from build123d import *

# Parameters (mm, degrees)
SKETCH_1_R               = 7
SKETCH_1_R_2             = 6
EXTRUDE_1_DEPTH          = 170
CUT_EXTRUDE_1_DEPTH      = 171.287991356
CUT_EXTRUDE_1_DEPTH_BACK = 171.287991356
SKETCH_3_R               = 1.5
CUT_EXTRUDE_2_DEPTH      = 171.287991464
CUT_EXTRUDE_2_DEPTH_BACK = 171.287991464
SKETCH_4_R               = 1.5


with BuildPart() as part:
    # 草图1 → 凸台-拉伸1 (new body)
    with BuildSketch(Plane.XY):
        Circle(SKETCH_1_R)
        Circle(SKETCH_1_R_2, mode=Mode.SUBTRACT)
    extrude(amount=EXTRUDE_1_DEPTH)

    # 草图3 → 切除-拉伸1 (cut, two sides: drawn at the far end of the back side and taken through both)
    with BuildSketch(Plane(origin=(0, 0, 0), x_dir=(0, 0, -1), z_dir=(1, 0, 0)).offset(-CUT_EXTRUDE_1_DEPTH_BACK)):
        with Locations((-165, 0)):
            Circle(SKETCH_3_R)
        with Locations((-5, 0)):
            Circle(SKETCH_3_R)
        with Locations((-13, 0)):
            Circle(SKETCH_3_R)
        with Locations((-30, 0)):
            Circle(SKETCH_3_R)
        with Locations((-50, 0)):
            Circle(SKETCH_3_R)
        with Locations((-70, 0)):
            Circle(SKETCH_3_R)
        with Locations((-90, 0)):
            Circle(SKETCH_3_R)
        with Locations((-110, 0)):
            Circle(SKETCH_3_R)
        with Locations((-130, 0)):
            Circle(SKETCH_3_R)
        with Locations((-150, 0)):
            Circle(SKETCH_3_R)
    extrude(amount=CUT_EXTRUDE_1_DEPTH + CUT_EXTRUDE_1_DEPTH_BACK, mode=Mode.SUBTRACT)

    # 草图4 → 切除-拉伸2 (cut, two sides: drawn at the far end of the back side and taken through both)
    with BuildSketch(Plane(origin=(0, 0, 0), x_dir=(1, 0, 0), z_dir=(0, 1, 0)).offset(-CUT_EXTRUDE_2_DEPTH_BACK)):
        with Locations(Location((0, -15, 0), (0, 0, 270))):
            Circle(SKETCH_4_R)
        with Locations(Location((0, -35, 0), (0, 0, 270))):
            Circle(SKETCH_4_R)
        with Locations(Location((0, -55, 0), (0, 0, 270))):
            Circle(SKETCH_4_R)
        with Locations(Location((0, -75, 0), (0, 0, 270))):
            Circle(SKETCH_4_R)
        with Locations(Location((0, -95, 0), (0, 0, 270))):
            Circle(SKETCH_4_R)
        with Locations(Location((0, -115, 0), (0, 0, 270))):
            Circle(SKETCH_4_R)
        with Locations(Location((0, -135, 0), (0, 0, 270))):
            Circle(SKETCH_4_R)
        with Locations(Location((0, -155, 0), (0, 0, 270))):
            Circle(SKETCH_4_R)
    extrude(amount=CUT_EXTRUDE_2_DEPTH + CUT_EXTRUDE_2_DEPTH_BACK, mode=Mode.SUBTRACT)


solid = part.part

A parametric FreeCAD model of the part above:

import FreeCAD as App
import Part
import Sketcher
from FreeCAD import Vector

doc = App.newDocument("Part")
body = doc.addObject("PartDesign::Body", "Body")

# Sketch on XY plane
sketch1 = doc.addObject("Sketcher::SketchObject", "Sketch")
body.addObject(sketch1)
sketch1.AttachmentSupport = (doc.XY_Plane, [""])
sketch1.MapMode = "FlatFace"
sketch1.addGeometry(Part.Circle(Vector(0, 0, 0), Vector(0, 0, 1), 7), False)
sketch1.addGeometry(Part.Circle(Vector(0, 0, 0), Vector(0, 0, 1), 6), False)
sketch1.addConstraint(Sketcher.Constraint("Coincident", 0, 3, -1, 1))
sketch1.addConstraint(Sketcher.Constraint("Coincident", 1, 3, -1, 1))
sketch1.addConstraint(Sketcher.Constraint("Diameter", 0, 14.0))
sketch1.addConstraint(Sketcher.Constraint("Diameter", 1, 12.0))
pad1 = doc.addObject("PartDesign::Pad", "Pad")
body.addObject(pad1)
pad1.Profile = sketch1
pad1.Length = 170

# Sketch on YZ plane
sketch2 = doc.addObject("Sketcher::SketchObject", "Sketch001")
body.addObject(sketch2)
sketch2.AttachmentSupport = (doc.YZ_Plane, [""])
sketch2.MapMode = "FlatFace"
sketch2.addGeometry(Part.Circle(Vector(0, 165, 0), Vector(0, 0, 1), 1.5), False)
sketch2.addGeometry(Part.Circle(Vector(0, 5, 0), Vector(0, 0, 1), 1.5), False)
sketch2.addGeometry(Part.Circle(Vector(0, 13, 0), Vector(0, 0, 1), 1.5), False)
sketch2.addGeometry(Part.Circle(Vector(0, 30, 0), Vector(0, 0, 1), 1.5), False)
sketch2.addGeometry(Part.Circle(Vector(0, 50, 0), Vector(0, 0, 1), 1.5), False)
sketch2.addGeometry(Part.Circle(Vector(0, 70, 0), Vector(0, 0, 1), 1.5), False)
sketch2.addGeometry(Part.Circle(Vector(0, 90, 0), Vector(0, 0, 1), 1.5), False)
sketch2.addGeometry(Part.Circle(Vector(0, 110, 0), Vector(0, 0, 1), 1.5), False)
sketch2.addGeometry(Part.Circle(Vector(0, 130, 0), Vector(0, 0, 1), 1.5), False)
sketch2.addGeometry(Part.Circle(Vector(0, 150, 0), Vector(0, 0, 1), 1.5), False)
sketch2.addConstraint(Sketcher.Constraint("Equal", 0, 1))
sketch2.addConstraint(Sketcher.Constraint("Equal", 1, 2))
sketch2.addConstraint(Sketcher.Constraint("Equal", 2, 3))
sketch2.addConstraint(Sketcher.Constraint("Equal", 3, 4))
sketch2.addConstraint(Sketcher.Constraint("Equal", 4, 5))
sketch2.addConstraint(Sketcher.Constraint("Equal", 5, 6))
sketch2.addConstraint(Sketcher.Constraint("Equal", 6, 7))
sketch2.addConstraint(Sketcher.Constraint("Equal", 7, 8))
sketch2.addConstraint(Sketcher.Constraint("Equal", 8, 9))
sketch2.addConstraint(Sketcher.Constraint("PointOnObject", 0, 3, -2))
sketch2.addConstraint(Sketcher.Constraint("PointOnObject", 1, 3, -2))
sketch2.addConstraint(Sketcher.Constraint("PointOnObject", 2, 3, -2))
sketch2.addConstraint(Sketcher.Constraint("PointOnObject", 3, 3, -2))
sketch2.addConstraint(Sketcher.Constraint("PointOnObject", 4, 3, -2))
sketch2.addConstraint(Sketcher.Constraint("PointOnObject", 5, 3, -2))
sketch2.addConstraint(Sketcher.Constraint("PointOnObject", 6, 3, -2))
sketch2.addConstraint(Sketcher.Constraint("PointOnObject", 7, 3, -2))
sketch2.addConstraint(Sketcher.Constraint("PointOnObject", 8, 3, -2))
sketch2.addConstraint(Sketcher.Constraint("PointOnObject", 9, 3, -2))
sketch2.addConstraint(Sketcher.Constraint("Diameter", 0, 3.0))
sketch2.addConstraint(Sketcher.Constraint("DistanceY", -1, 1, 0, 3, 165.0))
sketch2.addConstraint(Sketcher.Constraint("DistanceY", -1, 1, 1, 3, 5.0))
sketch2.addConstraint(Sketcher.Constraint("DistanceY", -1, 1, 2, 3, 13.0))
sketch2.addConstraint(Sketcher.Constraint("DistanceY", -1, 1, 3, 3, 30.0))
sketch2.addConstraint(Sketcher.Constraint("DistanceY", -1, 1, 4, 3, 50.0))
sketch2.addConstraint(Sketcher.Constraint("DistanceY", -1, 1, 5, 3, 70.0))
sketch2.addConstraint(Sketcher.Constraint("DistanceY", -1, 1, 6, 3, 90.0))
sketch2.addConstraint(Sketcher.Constraint("DistanceY", -1, 1, 7, 3, 110.0))
sketch2.addConstraint(Sketcher.Constraint("DistanceY", -1, 1, 8, 3, 130.0))
sketch2.addConstraint(Sketcher.Constraint("DistanceY", -1, 1, 9, 3, 150.0))
pocket1 = doc.addObject("PartDesign::Pocket", "Pocket")
body.addObject(pocket1)
pocket1.Profile = sketch2
pocket1.Type = "ThroughAll"
pocket1.Midplane = True

# Sketch on XZ plane
sketch3 = doc.addObject("Sketcher::SketchObject", "Sketch002")
body.addObject(sketch3)
sketch3.AttachmentSupport = (doc.XZ_Plane, [""])
sketch3.MapMode = "FlatFace"
sketch3.addGeometry(Part.Circle(Vector(0, 15, 0), Vector(0, 0, 1), 1.5), False)
sketch3.addGeometry(Part.Circle(Vector(0, 35, 0), Vector(0, 0, 1), 1.5), False)
sketch3.addGeometry(Part.Circle(Vector(0, 55, 0), Vector(0, 0, 1), 1.5), False)
sketch3.addGeometry(Part.Circle(Vector(0, 75, 0), Vector(0, 0, 1), 1.5), False)
sketch3.addGeometry(Part.Circle(Vector(0, 95, 0), Vector(0, 0, 1), 1.5), False)
sketch3.addGeometry(Part.Circle(Vector(0, 115, 0), Vector(0, 0, 1), 1.5), False)
sketch3.addGeometry(Part.Circle(Vector(0, 135, 0), Vector(0, 0, 1), 1.5), False)
sketch3.addGeometry(Part.Circle(Vector(0, 155, 0), Vector(0, 0, 1), 1.5), False)
sketch3.addConstraint(Sketcher.Constraint("Equal", 0, 1))
sketch3.addConstraint(Sketcher.Constraint("Equal", 1, 2))
sketch3.addConstraint(Sketcher.Constraint("Equal", 2, 3))
sketch3.addConstraint(Sketcher.Constraint("Equal", 3, 4))
sketch3.addConstraint(Sketcher.Constraint("Equal", 4, 5))
sketch3.addConstraint(Sketcher.Constraint("Equal", 5, 6))
sketch3.addConstraint(Sketcher.Constraint("Equal", 6, 7))
sketch3.addConstraint(Sketcher.Constraint("PointOnObject", 0, 3, -2))
sketch3.addConstraint(Sketcher.Constraint("PointOnObject", 1, 3, -2))
sketch3.addConstraint(Sketcher.Constraint("PointOnObject", 2, 3, -2))
sketch3.addConstraint(Sketcher.Constraint("PointOnObject", 3, 3, -2))
sketch3.addConstraint(Sketcher.Constraint("PointOnObject", 4, 3, -2))
sketch3.addConstraint(Sketcher.Constraint("PointOnObject", 5, 3, -2))
sketch3.addConstraint(Sketcher.Constraint("PointOnObject", 6, 3, -2))
sketch3.addConstraint(Sketcher.Constraint("PointOnObject", 7, 3, -2))
sketch3.addConstraint(Sketcher.Constraint("Diameter", 0, 3.0))
sketch3.addConstraint(Sketcher.Constraint("DistanceY", -1, 1, 0, 3, 15.0))
sketch3.addConstraint(Sketcher.Constraint("DistanceY", -1, 1, 1, 3, 35.0))
sketch3.addConstraint(Sketcher.Constraint("DistanceY", -1, 1, 2, 3, 55.0))
sketch3.addConstraint(Sketcher.Constraint("DistanceY", -1, 1, 3, 3, 75.0))
sketch3.addConstraint(Sketcher.Constraint("DistanceY", -1, 1, 4, 3, 95.0))
sketch3.addConstraint(Sketcher.Constraint("DistanceY", -1, 1, 5, 3, 115.0))
sketch3.addConstraint(Sketcher.Constraint("DistanceY", -1, 1, 6, 3, 135.0))
sketch3.addConstraint(Sketcher.Constraint("DistanceY", -1, 1, 7, 3, 155.0))
pocket2 = doc.addObject("PartDesign::Pocket", "Pocket001")
body.addObject(pocket2)
pocket2.Profile = sketch3
pocket2.Type = "ThroughAll"
pocket2.Midplane = True

doc.recompute()
